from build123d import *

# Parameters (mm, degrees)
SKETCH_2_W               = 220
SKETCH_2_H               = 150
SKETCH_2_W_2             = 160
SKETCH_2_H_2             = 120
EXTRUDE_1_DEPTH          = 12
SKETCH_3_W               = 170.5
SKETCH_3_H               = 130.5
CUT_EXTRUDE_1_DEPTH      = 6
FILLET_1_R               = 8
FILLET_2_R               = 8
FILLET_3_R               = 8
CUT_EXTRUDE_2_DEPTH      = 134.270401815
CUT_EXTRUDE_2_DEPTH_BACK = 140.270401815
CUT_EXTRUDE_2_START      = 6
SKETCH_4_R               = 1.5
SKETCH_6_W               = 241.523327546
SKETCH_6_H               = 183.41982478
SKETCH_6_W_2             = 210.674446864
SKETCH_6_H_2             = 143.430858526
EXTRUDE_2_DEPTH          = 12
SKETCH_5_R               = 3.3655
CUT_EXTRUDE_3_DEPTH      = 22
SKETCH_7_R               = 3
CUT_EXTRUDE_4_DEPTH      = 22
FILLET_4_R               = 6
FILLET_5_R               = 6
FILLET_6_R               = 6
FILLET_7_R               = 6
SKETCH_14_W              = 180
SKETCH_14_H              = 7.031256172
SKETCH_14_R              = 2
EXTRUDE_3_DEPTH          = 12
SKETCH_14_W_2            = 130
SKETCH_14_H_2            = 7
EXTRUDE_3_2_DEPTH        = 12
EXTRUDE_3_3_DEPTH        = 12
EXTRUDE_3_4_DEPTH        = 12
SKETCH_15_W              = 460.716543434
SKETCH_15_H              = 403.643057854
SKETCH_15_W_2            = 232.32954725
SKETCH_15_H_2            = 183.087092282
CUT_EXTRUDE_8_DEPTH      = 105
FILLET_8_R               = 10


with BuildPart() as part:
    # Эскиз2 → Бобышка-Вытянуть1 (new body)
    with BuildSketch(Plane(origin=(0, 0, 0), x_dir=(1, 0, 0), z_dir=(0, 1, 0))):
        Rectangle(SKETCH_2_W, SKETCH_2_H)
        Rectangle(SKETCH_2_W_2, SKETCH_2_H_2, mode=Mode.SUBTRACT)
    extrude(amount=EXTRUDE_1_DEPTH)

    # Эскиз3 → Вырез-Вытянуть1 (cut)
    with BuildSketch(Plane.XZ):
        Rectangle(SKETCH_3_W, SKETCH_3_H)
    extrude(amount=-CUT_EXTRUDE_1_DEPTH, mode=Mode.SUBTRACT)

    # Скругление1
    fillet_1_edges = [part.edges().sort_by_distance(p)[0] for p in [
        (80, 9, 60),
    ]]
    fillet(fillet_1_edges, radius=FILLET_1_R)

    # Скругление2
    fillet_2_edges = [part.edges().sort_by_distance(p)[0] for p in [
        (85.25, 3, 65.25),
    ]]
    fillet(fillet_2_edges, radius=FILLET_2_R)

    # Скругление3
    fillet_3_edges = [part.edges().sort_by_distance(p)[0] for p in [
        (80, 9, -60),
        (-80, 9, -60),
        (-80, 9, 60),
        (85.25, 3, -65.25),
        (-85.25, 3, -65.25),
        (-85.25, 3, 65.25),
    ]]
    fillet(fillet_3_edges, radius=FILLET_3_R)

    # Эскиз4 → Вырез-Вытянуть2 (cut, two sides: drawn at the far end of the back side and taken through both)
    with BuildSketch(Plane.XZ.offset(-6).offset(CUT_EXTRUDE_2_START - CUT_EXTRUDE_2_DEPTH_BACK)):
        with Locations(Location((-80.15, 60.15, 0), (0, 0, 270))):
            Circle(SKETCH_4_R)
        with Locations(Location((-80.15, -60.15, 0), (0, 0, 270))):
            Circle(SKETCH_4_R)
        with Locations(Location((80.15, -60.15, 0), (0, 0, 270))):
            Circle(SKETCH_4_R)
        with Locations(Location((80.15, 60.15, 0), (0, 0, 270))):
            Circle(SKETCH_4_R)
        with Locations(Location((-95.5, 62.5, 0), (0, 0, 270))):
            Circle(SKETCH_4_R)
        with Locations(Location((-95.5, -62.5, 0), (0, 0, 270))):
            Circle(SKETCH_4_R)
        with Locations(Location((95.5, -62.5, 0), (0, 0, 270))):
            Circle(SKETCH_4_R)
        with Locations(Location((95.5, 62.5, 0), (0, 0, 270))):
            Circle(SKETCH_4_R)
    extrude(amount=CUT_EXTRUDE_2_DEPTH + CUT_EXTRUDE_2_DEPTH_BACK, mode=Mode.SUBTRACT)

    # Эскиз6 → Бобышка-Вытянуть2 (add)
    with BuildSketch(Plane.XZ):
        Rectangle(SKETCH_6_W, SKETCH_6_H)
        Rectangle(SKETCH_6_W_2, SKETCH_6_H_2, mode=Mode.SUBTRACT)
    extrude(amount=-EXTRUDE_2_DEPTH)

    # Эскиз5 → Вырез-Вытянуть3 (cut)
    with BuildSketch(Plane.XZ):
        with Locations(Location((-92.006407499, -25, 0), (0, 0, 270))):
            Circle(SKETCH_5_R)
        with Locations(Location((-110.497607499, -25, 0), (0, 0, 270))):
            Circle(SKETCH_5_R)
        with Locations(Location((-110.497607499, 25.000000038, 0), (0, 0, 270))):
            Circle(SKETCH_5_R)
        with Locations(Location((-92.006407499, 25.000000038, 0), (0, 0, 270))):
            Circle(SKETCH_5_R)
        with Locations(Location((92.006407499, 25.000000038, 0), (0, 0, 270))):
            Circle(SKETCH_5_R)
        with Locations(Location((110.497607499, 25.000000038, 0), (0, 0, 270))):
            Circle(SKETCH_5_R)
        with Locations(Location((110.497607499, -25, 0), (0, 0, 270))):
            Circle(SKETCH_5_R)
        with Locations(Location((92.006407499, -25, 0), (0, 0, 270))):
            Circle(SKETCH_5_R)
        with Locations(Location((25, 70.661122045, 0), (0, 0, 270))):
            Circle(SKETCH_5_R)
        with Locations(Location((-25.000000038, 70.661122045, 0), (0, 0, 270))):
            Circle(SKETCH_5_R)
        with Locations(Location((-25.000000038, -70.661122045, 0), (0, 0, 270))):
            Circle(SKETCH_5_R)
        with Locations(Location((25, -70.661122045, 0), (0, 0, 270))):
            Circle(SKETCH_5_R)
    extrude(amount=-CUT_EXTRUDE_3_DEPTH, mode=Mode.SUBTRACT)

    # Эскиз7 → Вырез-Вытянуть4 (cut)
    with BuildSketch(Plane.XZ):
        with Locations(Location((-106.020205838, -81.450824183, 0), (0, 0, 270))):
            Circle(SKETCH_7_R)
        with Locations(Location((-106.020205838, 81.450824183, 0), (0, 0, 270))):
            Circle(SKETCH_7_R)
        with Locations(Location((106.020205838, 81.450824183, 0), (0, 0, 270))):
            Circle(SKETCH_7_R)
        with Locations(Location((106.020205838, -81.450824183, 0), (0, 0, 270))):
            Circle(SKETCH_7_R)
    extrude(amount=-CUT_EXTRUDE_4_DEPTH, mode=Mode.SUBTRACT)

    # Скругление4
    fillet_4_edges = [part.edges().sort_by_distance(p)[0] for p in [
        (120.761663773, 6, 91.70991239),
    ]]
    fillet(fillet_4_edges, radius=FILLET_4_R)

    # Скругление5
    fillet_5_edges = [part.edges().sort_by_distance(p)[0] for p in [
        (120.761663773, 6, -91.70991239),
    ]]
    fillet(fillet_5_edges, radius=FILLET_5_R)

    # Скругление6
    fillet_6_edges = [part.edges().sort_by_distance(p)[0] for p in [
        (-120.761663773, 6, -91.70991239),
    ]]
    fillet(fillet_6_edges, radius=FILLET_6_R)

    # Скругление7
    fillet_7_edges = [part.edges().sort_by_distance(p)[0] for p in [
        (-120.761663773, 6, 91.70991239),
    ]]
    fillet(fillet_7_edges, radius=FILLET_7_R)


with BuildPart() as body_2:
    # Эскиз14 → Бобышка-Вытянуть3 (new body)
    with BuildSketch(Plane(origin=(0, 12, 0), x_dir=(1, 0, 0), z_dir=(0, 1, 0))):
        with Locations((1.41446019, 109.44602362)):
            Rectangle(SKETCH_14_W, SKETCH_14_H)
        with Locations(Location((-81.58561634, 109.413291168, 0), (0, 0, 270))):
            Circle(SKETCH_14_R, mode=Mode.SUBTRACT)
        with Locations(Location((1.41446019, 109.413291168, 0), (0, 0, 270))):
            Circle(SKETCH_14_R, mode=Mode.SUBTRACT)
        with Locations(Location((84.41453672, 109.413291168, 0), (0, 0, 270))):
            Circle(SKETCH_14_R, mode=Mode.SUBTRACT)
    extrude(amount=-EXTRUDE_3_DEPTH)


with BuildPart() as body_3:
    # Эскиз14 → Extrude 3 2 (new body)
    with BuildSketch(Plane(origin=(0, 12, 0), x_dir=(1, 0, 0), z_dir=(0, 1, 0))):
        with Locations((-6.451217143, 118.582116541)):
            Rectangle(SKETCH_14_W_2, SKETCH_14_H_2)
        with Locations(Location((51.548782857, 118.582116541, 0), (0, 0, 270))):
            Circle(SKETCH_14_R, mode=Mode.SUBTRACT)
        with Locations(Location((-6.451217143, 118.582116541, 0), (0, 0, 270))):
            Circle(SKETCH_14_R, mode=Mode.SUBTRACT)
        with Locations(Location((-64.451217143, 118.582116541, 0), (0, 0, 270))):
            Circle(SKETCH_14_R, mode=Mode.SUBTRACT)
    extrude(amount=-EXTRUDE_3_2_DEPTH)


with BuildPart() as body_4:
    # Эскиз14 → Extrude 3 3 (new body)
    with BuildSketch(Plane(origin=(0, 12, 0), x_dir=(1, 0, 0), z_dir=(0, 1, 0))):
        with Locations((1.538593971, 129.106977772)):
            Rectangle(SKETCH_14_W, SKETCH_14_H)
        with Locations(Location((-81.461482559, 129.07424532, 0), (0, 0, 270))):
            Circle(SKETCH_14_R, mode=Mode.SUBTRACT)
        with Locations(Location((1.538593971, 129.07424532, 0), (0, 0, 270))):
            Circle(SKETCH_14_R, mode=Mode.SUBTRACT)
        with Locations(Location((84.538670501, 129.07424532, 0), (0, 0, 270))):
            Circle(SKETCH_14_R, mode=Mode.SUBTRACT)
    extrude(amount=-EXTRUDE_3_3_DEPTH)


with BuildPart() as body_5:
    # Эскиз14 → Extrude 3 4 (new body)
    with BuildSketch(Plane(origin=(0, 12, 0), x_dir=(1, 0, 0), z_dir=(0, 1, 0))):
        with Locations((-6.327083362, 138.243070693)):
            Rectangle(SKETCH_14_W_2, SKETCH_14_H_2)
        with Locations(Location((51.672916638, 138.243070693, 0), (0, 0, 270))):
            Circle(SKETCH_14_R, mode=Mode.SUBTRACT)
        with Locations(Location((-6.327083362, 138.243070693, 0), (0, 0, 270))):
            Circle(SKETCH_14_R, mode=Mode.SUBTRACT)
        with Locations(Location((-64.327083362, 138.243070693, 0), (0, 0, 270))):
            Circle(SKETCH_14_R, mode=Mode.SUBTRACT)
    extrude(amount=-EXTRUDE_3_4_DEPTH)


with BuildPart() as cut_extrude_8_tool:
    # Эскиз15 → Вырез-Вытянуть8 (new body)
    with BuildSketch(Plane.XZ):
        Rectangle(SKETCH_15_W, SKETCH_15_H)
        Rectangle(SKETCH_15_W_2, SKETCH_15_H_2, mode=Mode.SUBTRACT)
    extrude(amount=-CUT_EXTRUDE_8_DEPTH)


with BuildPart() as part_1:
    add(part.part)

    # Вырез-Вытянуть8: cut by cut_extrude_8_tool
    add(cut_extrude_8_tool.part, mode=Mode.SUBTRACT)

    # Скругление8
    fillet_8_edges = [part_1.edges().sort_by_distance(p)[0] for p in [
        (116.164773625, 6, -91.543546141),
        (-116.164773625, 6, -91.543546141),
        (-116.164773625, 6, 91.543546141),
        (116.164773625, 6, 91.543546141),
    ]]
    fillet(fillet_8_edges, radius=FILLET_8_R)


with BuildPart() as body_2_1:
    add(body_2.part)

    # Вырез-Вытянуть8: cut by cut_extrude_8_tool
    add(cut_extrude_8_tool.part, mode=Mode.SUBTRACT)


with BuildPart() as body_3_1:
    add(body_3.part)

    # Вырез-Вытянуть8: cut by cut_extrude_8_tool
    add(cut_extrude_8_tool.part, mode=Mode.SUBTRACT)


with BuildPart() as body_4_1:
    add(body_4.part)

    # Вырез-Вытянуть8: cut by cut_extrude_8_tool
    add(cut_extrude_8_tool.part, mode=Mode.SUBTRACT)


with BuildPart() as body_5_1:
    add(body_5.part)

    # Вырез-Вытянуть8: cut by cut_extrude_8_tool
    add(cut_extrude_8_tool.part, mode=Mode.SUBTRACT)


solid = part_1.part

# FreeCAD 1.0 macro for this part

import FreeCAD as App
import Part
import Sketcher
from FreeCAD import Vector


def edges_at(feature, points):
    """Names of the edges that pass closest to the given points."""
    edges = feature.Shape.Edges
    near = lambda p: min(range(len(edges)), key=lambda i: edges[i].distToShape(Part.Vertex(*p))[0])
    return sorted({f"Edge{near(p) + 1}" for p in points})

doc = App.newDocument("Part")
body = doc.addObject("PartDesign::Body", "Body")

sketch1 = body.newObject("Sketcher::SketchObject", "Sketch")
sketch1.AttachmentSupport = (doc.getObject("XZ_Plane"), [""])
sketch1.MapMode = "FlatFace"
sketch1.addGeometry(Part.LineSegment(Vector(-110, -75, 0), Vector(-110, 75, 0)), False)
sketch1.addGeometry(Part.LineSegment(Vector(-110, 75, 0), Vector(110, 75, 0)), False)
sketch1.addGeometry(Part.LineSegment(Vector(110, 75, 0), Vector(110, -75, 0)), False)
sketch1.addGeometry(Part.LineSegment(Vector(110, -75, 0), Vector(-110, -75, 0)), False)
sketch1.addGeometry(Part.LineSegment(Vector(80, 60, 0), Vector(-80, 60, 0)), False)
sketch1.addGeometry(Part.LineSegment(Vector(-80, 60, 0), Vector(-80, -60, 0)), False)
sketch1.addGeometry(Part.LineSegment(Vector(-80, -60, 0), Vector(80, -60, 0)), False)
sketch1.addGeometry(Part.LineSegment(Vector(80, -60, 0), Vector(80, 60, 0)), False)
sketch1.addConstraint(Sketcher.Constraint("Coincident", 0, 2, 1, 1))
sketch1.addConstraint(Sketcher.Constraint("Coincident", 1, 2, 2, 1))
sketch1.addConstraint(Sketcher.Constraint("Coincident", 2, 2, 3, 1))
sketch1.addConstraint(Sketcher.Constraint("Coincident", 3, 2, 0, 1))
sketch1.addConstraint(Sketcher.Constraint("Coincident", 4, 2, 5, 1))
sketch1.addConstraint(Sketcher.Constraint("Coincident", 5, 2, 6, 1))
sketch1.addConstraint(Sketcher.Constraint("Coincident", 6, 2, 7, 1))
sketch1.addConstraint(Sketcher.Constraint("Coincident", 7, 2, 4, 1))
sketch1.addConstraint(Sketcher.Constraint("Vertical", 0))
sketch1.addConstraint(Sketcher.Constraint("Horizontal", 1))
sketch1.addConstraint(Sketcher.Constraint("Vertical", 2))
sketch1.addConstraint(Sketcher.Constraint("Horizontal", 3))
sketch1.addConstraint(Sketcher.Constraint("Horizontal", 4))
sketch1.addConstraint(Sketcher.Constraint("Vertical", 5))
sketch1.addConstraint(Sketcher.Constraint("Horizontal", 6))
sketch1.addConstraint(Sketcher.Constraint("Vertical", 7))
sketch1.addConstraint(Sketcher.Constraint("Symmetric", 0, 2, 2, 2, -1, 1))
sketch1.addConstraint(Sketcher.Constraint("Symmetric", 4, 2, 6, 2, -1, 1))
sketch1.addConstraint(Sketcher.Constraint("DistanceX", 1, 1, 1, 2, 220.0))
sketch1.addConstraint(Sketcher.Constraint("DistanceX", 4, 2, 4, 1, 160.0))
sketch1.addConstraint(Sketcher.Constraint("DistanceY", 0, 1, 0, 2, 150.0))
sketch1.addConstraint(Sketcher.Constraint("DistanceY", 5, 2, 5, 1, 120.0))
pad1 = body.newObject("PartDesign::Pad", "Pad")
pad1.Profile = sketch1
pad1.Length = 12
pad1.Reversed = True

sketch2 = body.newObject("Sketcher::SketchObject", "Sketch001")
sketch2.AttachmentSupport = (doc.getObject("XZ_Plane"), [""])
sketch2.MapMode = "FlatFace"
sketch2.addGeometry(Part.LineSegment(Vector(-85, 65, 0), Vector(-85, -65, 0)), False)
sketch2.addGeometry(Part.LineSegment(Vector(-85, -65, 0), Vector(85, -65, 0)), False)
sketch2.addGeometry(Part.LineSegment(Vector(85, -65, 0), Vector(85, 65, 0)), False)
sketch2.addGeometry(Part.LineSegment(Vector(85, 65, 0), Vector(-85, 65, 0)), False)
sketch2.addConstraint(Sketcher.Constraint("Coincident", 0, 2, 1, 1))
sketch2.addConstraint(Sketcher.Constraint("Coincident", 1, 2, 2, 1))
sketch2.addConstraint(Sketcher.Constraint("Coincident", 2, 2, 3, 1))
sketch2.addConstraint(Sketcher.Constraint("Coincident", 3, 2, 0, 1))
sketch2.addConstraint(Sketcher.Constraint("Vertical", 0))
sketch2.addConstraint(Sketcher.Constraint("Horizontal", 1))
sketch2.addConstraint(Sketcher.Constraint("Vertical", 2))
sketch2.addConstraint(Sketcher.Constraint("Horizontal", 3))
sketch2.addConstraint(Sketcher.Constraint("Symmetric", 0, 2, 2, 2, -1, 1))
sketch2.addConstraint(Sketcher.Constraint("DistanceX", 1, 1, 1, 2, 170.5))
sketch2.addConstraint(Sketcher.Constraint("DistanceY", 0, 2, 0, 1, 130.5))
pocket1 = body.newObject("PartDesign::Pocket", "Pocket")
pocket1.Profile = sketch2
pocket1.Length = 6
doc.recompute()

fillet = body.newObject("PartDesign::Fillet", "Fillet")
fillet.Base = (pocket1, edges_at(pocket1, [(80, 9, 60)]))
fillet.Radius = 8
doc.recompute()

fillet2 = body.newObject("PartDesign::Fillet", "Fillet001")
fillet2.Base = (fillet, edges_at(fillet, [(85.25, 3, 65.25)]))
fillet2.Radius = 8
doc.recompute()

fillet3 = body.newObject("PartDesign::Fillet", "Fillet002")
fillet3.Base = (fillet2, edges_at(fillet2, [
    (80, 9, -60),
    (-80, 9, -60),
    (-80, 9, 60),
    (85.25, 3, -65.25),
    (-85.25, 3, -65.25),
    (-85.25, 3, 65.25),
]))
fillet3.Radius = 8

sketch3 = body.newObject("Sketcher::SketchObject", "Sketch002")
sketch3.AttachmentSupport = (doc.getObject("XZ_Plane"), [""])
sketch3.MapMode = "FlatFace"
sketch3.addGeometry(Part.Circle(Vector(-80.2, 60.1, 0), Vector(0, 0, 1), 1.5), False)
sketch3.addGeometry(Part.Circle(Vector(-80.2, -60.1, 0), Vector(0, 0, 1), 1.5), False)
sketch3.addGeometry(Part.Circle(Vector(80.2, -60.1, 0), Vector(0, 0, 1), 1.5), False)
sketch3.addGeometry(Part.Circle(Vector(80.2, 60.1, 0), Vector(0, 0, 1), 1.5), False)
sketch3.addGeometry(Part.Circle(Vector(-95.5, 62.5, 0), Vector(0, 0, 1), 1.5), False)
sketch3.addGeometry(Part.Circle(Vector(-95.5, -62.5, 0), Vector(0, 0, 1), 1.5), False)
sketch3.addGeometry(Part.Circle(Vector(95.5, -62.5, 0), Vector(0, 0, 1), 1.5), False)
sketch3.addGeometry(Part.Circle(Vector(95.5, 62.5, 0), Vector(0, 0, 1), 1.5), False)
sketch3.addConstraint(Sketcher.Constraint("Equal", 0, 1))
sketch3.addConstraint(Sketcher.Constraint("Equal", 1, 2))
sketch3.addConstraint(Sketcher.Constraint("Equal", 2, 3))
sketch3.addConstraint(Sketcher.Constraint("Equal", 3, 4))
sketch3.addConstraint(Sketcher.Constraint("Equal", 4, 5))
sketch3.addConstraint(Sketcher.Constraint("Equal", 5, 6))
sketch3.addConstraint(Sketcher.Constraint("Equal", 6, 7))
sketch3.addConstraint(Sketcher.Constraint("Symmetric", 0, 3, 2, 3, -1, 1))
sketch3.addConstraint(Sketcher.Constraint("Symmetric", 1, 3, 3, 3, -1, 1))
sketch3.addConstraint(Sketcher.Constraint("Symmetric", 4, 3, 6, 3, -1, 1))
sketch3.addConstraint(Sketcher.Constraint("Symmetric", 5, 3, 7, 3, -1, 1))
sketch3.addConstraint(Sketcher.Constraint("Symmetric", 1, 3, 2, 3, -2))
sketch3.addConstraint(Sketcher.Constraint("Symmetric", 5, 3, 6, 3, -2))
sketch3.addConstraint(Sketcher.Constraint("Diameter", 0, 3.0))
sketch3.addConstraint(Sketcher.Constraint("DistanceY", 5, 3, 4, 3, 125.0))
sketch3.addConstraint(Sketcher.Constraint("DistanceX", 5, 3, 6, 3, 191.0))
sketch3.addConstraint(Sketcher.Constraint("DistanceY", 1, 3, 0, 3, 120.3))
sketch3.addConstraint(Sketcher.Constraint("DistanceX", 1, 3, 2, 3, 160.3))
pocket2 = body.newObject("PartDesign::Pocket", "Pocket001")
pocket2.Profile = sketch3
pocket2.Type = "ThroughAll"
pocket2.Midplane = True

sketch4 = body.newObject("Sketcher::SketchObject", "Sketch003")
sketch4.AttachmentSupport = (doc.getObject("XZ_Plane"), [""])
sketch4.MapMode = "FlatFace"
sketch4.addGeometry(Part.LineSegment(Vector(-121, 92, 0), Vector(-121, -92, 0)), False)
sketch4.addGeometry(Part.LineSegment(Vector(-121, -92, 0), Vector(121, -92, 0)), False)
sketch4.addGeometry(Part.LineSegment(Vector(121, -92, 0), Vector(121, 92, 0)), False)
sketch4.addGeometry(Part.LineSegment(Vector(121, 92, 0), Vector(-121, 92, 0)), False)
sketch4.addGeometry(Part.LineSegment(Vector(105, -72, 0), Vector(-105, -72, 0)), False)
sketch4.addGeometry(Part.LineSegment(Vector(-105, -72, 0), Vector(-105, 72, 0)), False)
sketch4.addGeometry(Part.LineSegment(Vector(-105, 72, 0), Vector(105, 72, 0)), False)
sketch4.addGeometry(Part.LineSegment(Vector(105, 72, 0), Vector(105, -72, 0)), False)
sketch4.addConstraint(Sketcher.Constraint("Coincident", 0, 2, 1, 1))
sketch4.addConstraint(Sketcher.Constraint("Coincident", 1, 2, 2, 1))
sketch4.addConstraint(Sketcher.Constraint("Coincident", 2, 2, 3, 1))
sketch4.addConstraint(Sketcher.Constraint("Coincident", 3, 2, 0, 1))
sketch4.addConstraint(Sketcher.Constraint("Coincident", 4, 2, 5, 1))
sketch4.addConstraint(Sketcher.Constraint("Coincident", 5, 2, 6, 1))
sketch4.addConstraint(Sketcher.Constraint("Coincident", 6, 2, 7, 1))
sketch4.addConstraint(Sketcher.Constraint("Coincident", 7, 2, 4, 1))
sketch4.addConstraint(Sketcher.Constraint("Vertical", 0))
sketch4.addConstraint(Sketcher.Constraint("Horizontal", 1))
sketch4.addConstraint(Sketcher.Constraint("Vertical", 2))
sketch4.addConstraint(Sketcher.Constraint("Horizontal", 3))
sketch4.addConstraint(Sketcher.Constraint("Horizontal", 4))
sketch4.addConstraint(Sketcher.Constraint("Vertical", 5))
sketch4.addConstraint(Sketcher.Constraint("Horizontal", 6))
sketch4.addConstraint(Sketcher.Constraint("Vertical", 7))
sketch4.addConstraint(Sketcher.Constraint("Symmetric", 0, 2, 2, 2, -1, 1))
sketch4.addConstraint(Sketcher.Constraint("Symmetric", 4, 2, 6, 2, -1, 1))
sketch4.addConstraint(Sketcher.Constraint("DistanceY", 5, 1, 5, 2, 143.430859))
sketch4.addConstraint(Sketcher.Constraint("DistanceX", 1, 1, 1, 2, 241.523328))
sketch4.addConstraint(Sketcher.Constraint("DistanceX", 4, 2, 4, 1, 210.674447))
sketch4.addConstraint(Sketcher.Constraint("DistanceY", 0, 2, 0, 1, 183.419825))
pad2 = body.newObject("PartDesign::Pad", "Pad001")
pad2.Profile = sketch4
pad2.Length = 12
pad2.Reversed = True

sketch5 = body.newObject("Sketcher::SketchObject", "Sketch004")
sketch5.AttachmentSupport = (doc.getObject("XZ_Plane"), [""])
sketch5.MapMode = "FlatFace"
sketch5.addGeometry(Part.Circle(Vector(-92, -25, 0), Vector(0, 0, 1), 3.4), False)
sketch5.addGeometry(Part.Circle(Vector(-110.5, -25, 0), Vector(0, 0, 1), 3.4), False)
sketch5.addGeometry(Part.Circle(Vector(-110.5, 25, 0), Vector(0, 0, 1), 3.4), False)
sketch5.addGeometry(Part.Circle(Vector(-92, 25, 0), Vector(0, 0, 1), 3.4), False)
sketch5.addGeometry(Part.Circle(Vector(92, 25, 0), Vector(0, 0, 1), 3.4), False)
sketch5.addGeometry(Part.Circle(Vector(110.5, 25, 0), Vector(0, 0, 1), 3.4), False)
sketch5.addGeometry(Part.Circle(Vector(110.5, -25, 0), Vector(0, 0, 1), 3.4), False)
sketch5.addGeometry(Part.Circle(Vector(92, -25, 0), Vector(0, 0, 1), 3.4), False)
sketch5.addGeometry(Part.Circle(Vector(25, 70.7, 0), Vector(0, 0, 1), 3.4), False)
sketch5.addGeometry(Part.Circle(Vector(-25, 70.7, 0), Vector(0, 0, 1), 3.4), False)
sketch5.addGeometry(Part.Circle(Vector(-25, -70.7, 0), Vector(0, 0, 1), 3.4), False)
sketch5.addGeometry(Part.Circle(Vector(25, -70.7, 0), Vector(0, 0, 1), 3.4), False)
sketch5.addConstraint(Sketcher.Constraint("Equal", 0, 1))
sketch5.addConstraint(Sketcher.Constraint("Equal", 1, 2))
sketch5.addConstraint(Sketcher.Constraint("Equal", 2, 3))
sketch5.addConstraint(Sketcher.Constraint("Equal", 3, 4))
sketch5.addConstraint(Sketcher.Constraint("Equal", 4, 5))
sketch5.addConstraint(Sketcher.Constraint("Equal", 5, 6))
sketch5.addConstraint(Sketcher.Constraint("Equal", 6, 7))
sketch5.addConstraint(Sketcher.Constraint("Equal", 7, 8))
sketch5.addConstraint(Sketcher.Constraint("Equal", 8, 9))
sketch5.addConstraint(Sketcher.Constraint("Equal", 9, 10))
sketch5.addConstraint(Sketcher.Constraint("Equal", 10, 11))
sketch5.addConstraint(Sketcher.Constraint("Symmetric", 0, 3, 4, 3, -1, 1))
sketch5.addConstraint(Sketcher.Constraint("Symmetric", 1, 3, 5, 3, -1, 1))
sketch5.addConstraint(Sketcher.Constraint("Symmetric", 2, 3, 6, 3, -1, 1))
sketch5.addConstraint(Sketcher.Constraint("Symmetric", 3, 3, 7, 3, -1, 1))
sketch5.addConstraint(Sketcher.Constraint("Symmetric", 8, 3, 10, 3, -1, 1))
sketch5.addConstraint(Sketcher.Constraint("Symmetric", 9, 3, 11, 3, -1, 1))
sketch5.addConstraint(Sketcher.Constraint("Symmetric", 3, 3, 4, 3, -2))
sketch5.addConstraint(Sketcher.Constraint("Symmetric", 2, 3, 5, 3, -2))
sketch5.addConstraint(Sketcher.Constraint("Symmetric", 8, 3, 9, 3, -2))
sketch5.addConstraint(Sketcher.Constraint("Horizontal", 0, 3, 1, 3))
sketch5.addConstraint(Sketcher.Constraint("Diameter", 0, 6.731))
sketch5.addConstraint(Sketcher.Constraint("DistanceY", 0, 3, -1, 1, 25.0))
sketch5.addConstraint(Sketcher.Constraint("DistanceX", -1, 1, 8, 3, 25.0))
sketch5.addConstraint(Sketcher.Constraint("DistanceX", 1, 3, 0, 3, 18.4912))
sketch5.addConstraint(Sketcher.Constraint("DistanceX", 0, 3, -1, 1, 92.006407))
sketch5.addConstraint(Sketcher.Constraint("DistanceY", -1, 1, 8, 3, 70.661122))
pocket3 = body.newObject("PartDesign::Pocket", "Pocket002")
pocket3.Profile = sketch5
pocket3.Length = 22

sketch6 = body.newObject("Sketcher::SketchObject", "Sketch005")
sketch6.AttachmentSupport = (doc.getObject("XZ_Plane"), [""])
sketch6.MapMode = "FlatFace"
sketch6.addGeometry(Part.Circle(Vector(-106, -81.5, 0), Vector(0, 0, 1), 3), False)
sketch6.addGeometry(Part.Circle(Vector(-106, 81.5, 0), Vector(0, 0, 1), 3), False)
sketch6.addGeometry(Part.Circle(Vector(106, 81.5, 0), Vector(0, 0, 1), 3), False)
sketch6.addGeometry(Part.Circle(Vector(106, -81.5, 0), Vector(0, 0, 1), 3), False)
sketch6.addConstraint(Sketcher.Constraint("Equal", 0, 1))
sketch6.addConstraint(Sketcher.Constraint("Equal", 1, 2))
sketch6.addConstraint(Sketcher.Constraint("Equal", 2, 3))
sketch6.addConstraint(Sketcher.Constraint("Symmetric", 0, 3, 2, 3, -1, 1))
sketch6.addConstraint(Sketcher.Constraint("Symmetric", 1, 3, 3, 3, -1, 1))
sketch6.addConstraint(Sketcher.Constraint("Symmetric", 1, 3, 2, 3, -2))
sketch6.addConstraint(Sketcher.Constraint("Diameter", 0, 6.0))
sketch6.addConstraint(Sketcher.Constraint("DistanceY", 0, 3, 1, 3, 162.901648))
sketch6.addConstraint(Sketcher.Constraint("DistanceX", 1, 3, 2, 3, 212.040412))
pocket4 = body.newObject("PartDesign::Pocket", "Pocket003")
pocket4.Profile = sketch6
pocket4.Length = 22
doc.recompute()

fillet4 = body.newObject("PartDesign::Fillet", "Fillet003")
fillet4.Base = (pocket4, edges_at(pocket4, [(120.762, 6, 91.71)]))
fillet4.Radius = 6
doc.recompute()

fillet5 = body.newObject("PartDesign::Fillet", "Fillet004")
fillet5.Base = (fillet4, edges_at(fillet4, [(120.762, 6, -91.71)]))
fillet5.Radius = 6
doc.recompute()

fillet6 = body.newObject("PartDesign::Fillet", "Fillet005")
fillet6.Base = (fillet5, edges_at(fillet5, [(-120.762, 6, -91.71)]))
fillet6.Radius = 6
doc.recompute()

fillet7 = body.newObject("PartDesign::Fillet", "Fillet006")
fillet7.Base = (fillet6, edges_at(fillet6, [(-120.762, 6, 91.71)]))
fillet7.Radius = 6
body2 = doc.addObject("PartDesign::Body", "Body001")

sketch7 = body2.newObject("Sketcher::SketchObject", "Sketch006")
sketch7.AttachmentSupport = (doc.getObject("XZ_Plane001"), [""])
sketch7.MapMode = "FlatFace"
sketch7.AttachmentOffset = App.Placement(Vector(0, 0, -12), App.Rotation())
sketch7.addGeometry(Part.LineSegment(Vector(-88.6, -113, 0), Vector(-88.6, -105.9, 0)), False)
sketch7.addGeometry(Part.LineSegment(Vector(-88.6, -105.9, 0), Vector(91.4, -105.9, 0)), False)
sketch7.addGeometry(Part.LineSegment(Vector(91.4, -105.9, 0), Vector(91.4, -113, 0)), False)
sketch7.addGeometry(Part.LineSegment(Vector(91.4, -113, 0), Vector(-88.6, -113, 0)), False)
sketch7.addGeometry(Part.Circle(Vector(-81.6, -109.4, 0), Vector(0, 0, 1), 2), False)
sketch7.addGeometry(Part.Circle(Vector(1.4, -109.4, 0), Vector(0, 0, 1), 2), False)
sketch7.addGeometry(Part.Circle(Vector(84.4, -109.4, 0), Vector(0, 0, 1), 2), False)
sketch7.addConstraint(Sketcher.Constraint("Coincident", 0, 2, 1, 1))
sketch7.addConstraint(Sketcher.Constraint("Coincident", 1, 2, 2, 1))
sketch7.addConstraint(Sketcher.Constraint("Coincident", 2, 2, 3, 1))
sketch7.addConstraint(Sketcher.Constraint("Coincident", 3, 2, 0, 1))
sketch7.addConstraint(Sketcher.Constraint("Vertical", 0))
sketch7.addConstraint(Sketcher.Constraint("Horizontal", 1))
sketch7.addConstraint(Sketcher.Constraint("Vertical", 2))
sketch7.addConstraint(Sketcher.Constraint("Horizontal", 3))
sketch7.addConstraint(Sketcher.Constraint("Equal", 4, 5))
sketch7.addConstraint(Sketcher.Constraint("Equal", 5, 6))
sketch7.addConstraint(Sketcher.Constraint("Horizontal", 4, 3, 5, 3))
sketch7.addConstraint(Sketcher.Constraint("Horizontal", 5, 3, 6, 3))
sketch7.addConstraint(Sketcher.Constraint("Diameter", 4, 4.0))
sketch7.addConstraint(Sketcher.Constraint("DistanceX", 1, 1, 1, 2, 180.0))
sketch7.addConstraint(Sketcher.Constraint("DistanceX", 0, 2, 5, 3, 90.0))
sketch7.addConstraint(Sketcher.Constraint("DistanceY", 0, 1, 0, 2, 7.031256))
sketch7.addConstraint(Sketcher.Constraint("DistanceY", 4, 3, -1, 1, 109.413291))
sketch7.addConstraint(Sketcher.Constraint("DistanceX", -1, 1, 5, 3, 1.41446))
sketch7.addConstraint(Sketcher.Constraint("DistanceY", 2, 2, -1, 1, 112.961652))
sketch7.addConstraint(Sketcher.Constraint("DistanceX", 4, 3, -1, 1, 81.585616))
sketch7.addConstraint(Sketcher.Constraint("DistanceX", -1, 1, 6, 3, 84.414537))
pad3 = body2.newObject("PartDesign::Pad", "Pad002")
pad3.Profile = sketch7
pad3.Length = 12
body3 = doc.addObject("PartDesign::Body", "Body002")

sketch8 = body3.newObject("Sketcher::SketchObject", "Sketch007")
sketch8.AttachmentSupport = (doc.getObject("XZ_Plane002"), [""])
sketch8.MapMode = "FlatFace"
sketch8.AttachmentOffset = App.Placement(Vector(0, 0, -12), App.Rotation())
sketch8.addGeometry(Part.LineSegment(Vector(-71.5, -122.1, 0), Vector(-71.5, -115.1, 0)), False)
sketch8.addGeometry(Part.LineSegment(Vector(-71.5, -115.1, 0), Vector(58.5, -115.1, 0)), False)
sketch8.addGeometry(Part.LineSegment(Vector(58.5, -115.1, 0), Vector(58.5, -122.1, 0)), False)
sketch8.addGeometry(Part.LineSegment(Vector(58.5, -122.1, 0), Vector(-71.5, -122.1, 0)), False)
sketch8.addGeometry(Part.Circle(Vector(-64.5, -118.6, 0), Vector(0, 0, 1), 2), False)
sketch8.addGeometry(Part.Circle(Vector(-6.5, -118.6, 0), Vector(0, 0, 1), 2), False)
sketch8.addGeometry(Part.Circle(Vector(51.5, -118.6, 0), Vector(0, 0, 1), 2), False)
sketch8.addConstraint(Sketcher.Constraint("Coincident", 0, 2, 1, 1))
sketch8.addConstraint(Sketcher.Constraint("Coincident", 1, 2, 2, 1))
sketch8.addConstraint(Sketcher.Constraint("Coincident", 2, 2, 3, 1))
sketch8.addConstraint(Sketcher.Constraint("Coincident", 3, 2, 0, 1))
sketch8.addConstraint(Sketcher.Constraint("Vertical", 0))
sketch8.addConstraint(Sketcher.Constraint("Horizontal", 1))
sketch8.addConstraint(Sketcher.Constraint("Vertical", 2))
sketch8.addConstraint(Sketcher.Constraint("Horizontal", 3))
sketch8.addConstraint(Sketcher.Constraint("Equal", 4, 5))
sketch8.addConstraint(Sketcher.Constraint("Equal", 5, 6))
sketch8.addConstraint(Sketcher.Constraint("Horizontal", 4, 3, 5, 3))
sketch8.addConstraint(Sketcher.Constraint("Horizontal", 5, 3, 6, 3))
sketch8.addConstraint(Sketcher.Constraint("Diameter", 4, 4.0))
sketch8.addConstraint(Sketcher.Constraint("DistanceX", 1, 1, 1, 2, 130.0))
sketch8.addConstraint(Sketcher.Constraint("DistanceY", 0, 1, 0, 2, 7.0))
sketch8.addConstraint(Sketcher.Constraint("DistanceX", 4, 3, 5, 3, 58.0))
sketch8.addConstraint(Sketcher.Constraint("DistanceX", 5, 3, 6, 3, 58.0))
sketch8.addConstraint(Sketcher.Constraint("DistanceX", 0, 2, 4, 3, 7.0))
sketch8.addConstraint(Sketcher.Constraint("DistanceY", 4, 3, 0, 2, 3.5))
sketch8.addConstraint(Sketcher.Constraint("DistanceX", 4, 3, -1, 1, 64.451217))
sketch8.addConstraint(Sketcher.Constraint("DistanceY", 4, 3, -1, 1, 118.582117))
pad4 = body3.newObject("PartDesign::Pad", "Pad003")
pad4.Profile = sketch8
pad4.Length = 12
body4 = doc.addObject("PartDesign::Body", "Body003")

sketch9 = body4.newObject("Sketcher::SketchObject", "Sketch008")
sketch9.AttachmentSupport = (doc.getObject("XZ_Plane003"), [""])
sketch9.MapMode = "FlatFace"
sketch9.AttachmentOffset = App.Placement(Vector(0, 0, -12), App.Rotation())
sketch9.addGeometry(Part.LineSegment(Vector(-88.5, -132.6, 0), Vector(-88.5, -125.6, 0)), False)
sketch9.addGeometry(Part.LineSegment(Vector(-88.5, -125.6, 0), Vector(91.5, -125.6, 0)), False)
sketch9.addGeometry(Part.LineSegment(Vector(91.5, -125.6, 0), Vector(91.5, -132.6, 0)), False)
sketch9.addGeometry(Part.LineSegment(Vector(91.5, -132.6, 0), Vector(-88.5, -132.6, 0)), False)
sketch9.addGeometry(Part.Circle(Vector(-81.5, -129.1, 0), Vector(0, 0, 1), 2), False)
sketch9.addGeometry(Part.Circle(Vector(1.5, -129.1, 0), Vector(0, 0, 1), 2), False)
sketch9.addGeometry(Part.Circle(Vector(84.5, -129.1, 0), Vector(0, 0, 1), 2), False)
sketch9.addConstraint(Sketcher.Constraint("Coincident", 0, 2, 1, 1))
sketch9.addConstraint(Sketcher.Constraint("Coincident", 1, 2, 2, 1))
sketch9.addConstraint(Sketcher.Constraint("Coincident", 2, 2, 3, 1))
sketch9.addConstraint(Sketcher.Constraint("Coincident", 3, 2, 0, 1))
sketch9.addConstraint(Sketcher.Constraint("Vertical", 0))
sketch9.addConstraint(Sketcher.Constraint("Horizontal", 1))
sketch9.addConstraint(Sketcher.Constraint("Vertical", 2))
sketch9.addConstraint(Sketcher.Constraint("Horizontal", 3))
sketch9.addConstraint(Sketcher.Constraint("Equal", 4, 5))
sketch9.addConstraint(Sketcher.Constraint("Equal", 5, 6))
sketch9.addConstraint(Sketcher.Constraint("Horizontal", 4, 3, 5, 3))
sketch9.addConstraint(Sketcher.Constraint("Horizontal", 5, 3, 6, 3))
sketch9.addConstraint(Sketcher.Constraint("Diameter", 4, 4.0))
sketch9.addConstraint(Sketcher.Constraint("DistanceX", 1, 1, 1, 2, 180.0))
sketch9.addConstraint(Sketcher.Constraint("DistanceX", 0, 2, 5, 3, 90.0))
sketch9.addConstraint(Sketcher.Constraint("DistanceY", 0, 1, 0, 2, 7.031256))
sketch9.addConstraint(Sketcher.Constraint("DistanceX", -1, 1, 6, 3, 84.538671))
sketch9.addConstraint(Sketcher.Constraint("DistanceY", 0, 2, -1, 1, 125.59135))
sketch9.addConstraint(Sketcher.Constraint("DistanceY", 2, 2, 6, 3, 3.548361))
sketch9.addConstraint(Sketcher.Constraint("DistanceX", 4, 3, -1, 1, 81.461483))
sketch9.addConstraint(Sketcher.Constraint("DistanceX", -1, 1, 5, 3, 1.538594))
pad5 = body4.newObject("PartDesign::Pad", "Pad004")
pad5.Profile = sketch9
pad5.Length = 12
body5 = doc.addObject("PartDesign::Body", "Body004")

sketch10 = body5.newObject("Sketcher::SketchObject", "Sketch009")
sketch10.AttachmentSupport = (doc.getObject("XZ_Plane004"), [""])
sketch10.MapMode = "FlatFace"
sketch10.AttachmentOffset = App.Placement(Vector(0, 0, -12), App.Rotation())
sketch10.addGeometry(Part.LineSegment(Vector(-71.3, -141.7, 0), Vector(-71.3, -134.7, 0)), False)
sketch10.addGeometry(Part.LineSegment(Vector(-71.3, -134.7, 0), Vector(58.7, -134.7, 0)), False)
sketch10.addGeometry(Part.LineSegment(Vector(58.7, -134.7, 0), Vector(58.7, -141.7, 0)), False)
sketch10.addGeometry(Part.LineSegment(Vector(58.7, -141.7, 0), Vector(-71.3, -141.7, 0)), False)
sketch10.addGeometry(Part.Circle(Vector(-64.3, -138.2, 0), Vector(0, 0, 1), 2), False)
sketch10.addGeometry(Part.Circle(Vector(-6.3, -138.2, 0), Vector(0, 0, 1), 2), False)
sketch10.addGeometry(Part.Circle(Vector(51.7, -138.2, 0), Vector(0, 0, 1), 2), False)
sketch10.addConstraint(Sketcher.Constraint("Coincident", 0, 2, 1, 1))
sketch10.addConstraint(Sketcher.Constraint("Coincident", 1, 2, 2, 1))
sketch10.addConstraint(Sketcher.Constraint("Coincident", 2, 2, 3, 1))
sketch10.addConstraint(Sketcher.Constraint("Coincident", 3, 2, 0, 1))
sketch10.addConstraint(Sketcher.Constraint("Vertical", 0))
sketch10.addConstraint(Sketcher.Constraint("Horizontal", 1))
sketch10.addConstraint(Sketcher.Constraint("Vertical", 2))
sketch10.addConstraint(Sketcher.Constraint("Horizontal", 3))
sketch10.addConstraint(Sketcher.Constraint("Equal", 4, 5))
sketch10.addConstraint(Sketcher.Constraint("Equal", 5, 6))
sketch10.addConstraint(Sketcher.Constraint("Horizontal", 4, 3, 5, 3))
sketch10.addConstraint(Sketcher.Constraint("Horizontal", 5, 3, 6, 3))
sketch10.addConstraint(Sketcher.Constraint("Diameter", 4, 4.0))
sketch10.addConstraint(Sketcher.Constraint("DistanceX", 1, 1, 1, 2, 130.0))
sketch10.addConstraint(Sketcher.Constraint("DistanceY", 0, 1, 0, 2, 7.0))
sketch10.addConstraint(Sketcher.Constraint("DistanceX", 4, 3, 5, 3, 58.0))
sketch10.addConstraint(Sketcher.Constraint("DistanceX", 5, 3, 6, 3, 58.0))
sketch10.addConstraint(Sketcher.Constraint("DistanceX", 0, 2, 4, 3, 7.0))
sketch10.addConstraint(Sketcher.Constraint("DistanceY", 4, 3, 0, 2, 3.5))
sketch10.addConstraint(Sketcher.Constraint("DistanceY", 4, 3, -1, 1, 138.243071))
sketch10.addConstraint(Sketcher.Constraint("DistanceX", 4, 3, -1, 1, 64.327083))
pad6 = body5.newObject("PartDesign::Pad", "Pad005")
pad6.Profile = sketch10
pad6.Length = 12
body6 = doc.addObject("PartDesign::Body", "Body005")

sketch11 = body6.newObject("Sketcher::SketchObject", "Sketch010")
sketch11.AttachmentSupport = (doc.getObject("XZ_Plane005"), [""])
sketch11.MapMode = "FlatFace"
sketch11.addGeometry(Part.LineSegment(Vector(-230, 202, 0), Vector(-230, -202, 0)), False)
sketch11.addGeometry(Part.LineSegment(Vector(-230, -202, 0), Vector(230, -202, 0)), False)
sketch11.addGeometry(Part.LineSegment(Vector(230, -202, 0), Vector(230, 202, 0)), False)
sketch11.addGeometry(Part.LineSegment(Vector(230, 202, 0), Vector(-230, 202, 0)), False)
sketch11.addGeometry(Part.LineSegment(Vector(116, -92, 0), Vector(-116, -92, 0)), False)
sketch11.addGeometry(Part.LineSegment(Vector(-116, -92, 0), Vector(-116, 92, 0)), False)
sketch11.addGeometry(Part.LineSegment(Vector(-116, 92, 0), Vector(116, 92, 0)), False)
sketch11.addGeometry(Part.LineSegment(Vector(116, 92, 0), Vector(116, -92, 0)), False)
sketch11.addConstraint(Sketcher.Constraint("Coincident", 0, 2, 1, 1))
sketch11.addConstraint(Sketcher.Constraint("Coincident", 1, 2, 2, 1))
sketch11.addConstraint(Sketcher.Constraint("Coincident", 2, 2, 3, 1))
sketch11.addConstraint(Sketcher.Constraint("Coincident", 3, 2, 0, 1))
sketch11.addConstraint(Sketcher.Constraint("Coincident", 4, 2, 5, 1))
sketch11.addConstraint(Sketcher.Constraint("Coincident", 5, 2, 6, 1))
sketch11.addConstraint(Sketcher.Constraint("Coincident", 6, 2, 7, 1))
sketch11.addConstraint(Sketcher.Constraint("Coincident", 7, 2, 4, 1))
sketch11.addConstraint(Sketcher.Constraint("Vertical", 0))
sketch11.addConstraint(Sketcher.Constraint("Horizontal", 1))
sketch11.addConstraint(Sketcher.Constraint("Vertical", 2))
sketch11.addConstraint(Sketcher.Constraint("Horizontal", 3))
sketch11.addConstraint(Sketcher.Constraint("Horizontal", 4))
sketch11.addConstraint(Sketcher.Constraint("Vertical", 5))
sketch11.addConstraint(Sketcher.Constraint("Horizontal", 6))
sketch11.addConstraint(Sketcher.Constraint("Vertical", 7))
sketch11.addConstraint(Sketcher.Constraint("Symmetric", 0, 2, 2, 2, -1, 1))
sketch11.addConstraint(Sketcher.Constraint("Symmetric", 4, 2, 6, 2, -1, 1))
sketch11.addConstraint(Sketcher.Constraint("DistanceX", 0, 2, 4, 2, 114.193498))
sketch11.addConstraint(Sketcher.Constraint("DistanceX", 1, 1, 1, 2, 460.716543))
sketch11.addConstraint(Sketcher.Constraint("DistanceY", 0, 2, 0, 1, 403.643058))
sketch11.addConstraint(Sketcher.Constraint("DistanceY", 5, 1, 5, 2, 183.087092))
pad7 = body6.newObject("PartDesign::Pad", "Pad006")
pad7.Profile = sketch11
pad7.Length = 105
pad7.Reversed = True
doc.recompute()

body7 = doc.addObject("PartDesign::Body", "Body006")
body7.BaseFeature = body6
boolean = body.newObject("PartDesign::Boolean", "Boolean")
boolean.Type = "Cut"
boolean.addObjects([body7])
doc.recompute()

fillet8 = body.newObject("PartDesign::Fillet", "Fillet007")
fillet8.Base = (boolean, edges_at(boolean, [
    (116.165, 6, -91.544),
    (-116.165, 6, -91.544),
    (-116.165, 6, 91.544),
    (116.165, 6, 91.544),
]))
fillet8.Radius = 10
doc.recompute()

body8 = doc.addObject("PartDesign::Body", "Body007")
body8.BaseFeature = body6
boolean2 = body2.newObject("PartDesign::Boolean", "Boolean001")
boolean2.Type = "Cut"
boolean2.addObjects([body8])
doc.recompute()

body9 = doc.addObject("PartDesign::Body", "Body008")
body9.BaseFeature = body6
boolean3 = body3.newObject("PartDesign::Boolean", "Boolean002")
boolean3.Type = "Cut"
boolean3.addObjects([body9])
doc.recompute()

body10 = doc.addObject("PartDesign::Body", "Body009")
body10.BaseFeature = body6
boolean4 = body4.newObject("PartDesign::Boolean", "Boolean003")
boolean4.Type = "Cut"
boolean4.addObjects([body10])
doc.recompute()

boolean5 = body5.newObject("PartDesign::Boolean", "Boolean004")
boolean5.Type = "Cut"
boolean5.addObjects([body6])

doc.recompute()
